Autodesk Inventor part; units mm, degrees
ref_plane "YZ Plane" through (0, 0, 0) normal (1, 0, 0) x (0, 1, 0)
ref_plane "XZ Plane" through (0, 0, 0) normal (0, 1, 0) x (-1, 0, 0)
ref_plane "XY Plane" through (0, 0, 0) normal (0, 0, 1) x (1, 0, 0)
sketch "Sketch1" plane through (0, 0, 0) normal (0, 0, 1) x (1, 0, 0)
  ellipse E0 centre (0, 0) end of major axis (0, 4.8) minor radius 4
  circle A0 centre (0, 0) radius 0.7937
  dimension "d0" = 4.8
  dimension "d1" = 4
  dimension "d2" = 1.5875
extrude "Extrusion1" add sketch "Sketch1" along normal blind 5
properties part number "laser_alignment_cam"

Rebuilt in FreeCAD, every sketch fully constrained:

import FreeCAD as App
import Part
import Sketcher
Q = App.Units.Quantity

doc = App.newDocument("Part")
body = doc.addObject("PartDesign::Body", "Body")

# Sketch on XY plane
sketch1 = body.newObject("Sketcher::SketchObject", "Sketch")
sketch1.AttachmentSupport = (doc.getObject("XY_Plane"), [""])
sketch1.MapMode = "FlatFace"
sketch1.addGeometry(Part.Ellipse(App.Vector(0, 4.8, 0), App.Vector(-4, 0, 0), App.Vector(0, 0, 0)), False)
sketch1.addGeometry(Part.Circle(App.Vector(0, 0, 0), App.Vector(0, 0, 1), 0.7937), False)
sketch1.addConstraint(Sketcher.Constraint("Block", 0))
sketch1.addConstraint(Sketcher.Constraint("Coincident", 1, 3, -1, 1))
sketch1.addConstraint(Sketcher.Constraint("Diameter", 1, Q("1.5874 mm")))
pad1 = body.newObject("PartDesign::Pad", "Pad")
pad1.Profile = sketch1
pad1.Length = 5

doc.recompute()
